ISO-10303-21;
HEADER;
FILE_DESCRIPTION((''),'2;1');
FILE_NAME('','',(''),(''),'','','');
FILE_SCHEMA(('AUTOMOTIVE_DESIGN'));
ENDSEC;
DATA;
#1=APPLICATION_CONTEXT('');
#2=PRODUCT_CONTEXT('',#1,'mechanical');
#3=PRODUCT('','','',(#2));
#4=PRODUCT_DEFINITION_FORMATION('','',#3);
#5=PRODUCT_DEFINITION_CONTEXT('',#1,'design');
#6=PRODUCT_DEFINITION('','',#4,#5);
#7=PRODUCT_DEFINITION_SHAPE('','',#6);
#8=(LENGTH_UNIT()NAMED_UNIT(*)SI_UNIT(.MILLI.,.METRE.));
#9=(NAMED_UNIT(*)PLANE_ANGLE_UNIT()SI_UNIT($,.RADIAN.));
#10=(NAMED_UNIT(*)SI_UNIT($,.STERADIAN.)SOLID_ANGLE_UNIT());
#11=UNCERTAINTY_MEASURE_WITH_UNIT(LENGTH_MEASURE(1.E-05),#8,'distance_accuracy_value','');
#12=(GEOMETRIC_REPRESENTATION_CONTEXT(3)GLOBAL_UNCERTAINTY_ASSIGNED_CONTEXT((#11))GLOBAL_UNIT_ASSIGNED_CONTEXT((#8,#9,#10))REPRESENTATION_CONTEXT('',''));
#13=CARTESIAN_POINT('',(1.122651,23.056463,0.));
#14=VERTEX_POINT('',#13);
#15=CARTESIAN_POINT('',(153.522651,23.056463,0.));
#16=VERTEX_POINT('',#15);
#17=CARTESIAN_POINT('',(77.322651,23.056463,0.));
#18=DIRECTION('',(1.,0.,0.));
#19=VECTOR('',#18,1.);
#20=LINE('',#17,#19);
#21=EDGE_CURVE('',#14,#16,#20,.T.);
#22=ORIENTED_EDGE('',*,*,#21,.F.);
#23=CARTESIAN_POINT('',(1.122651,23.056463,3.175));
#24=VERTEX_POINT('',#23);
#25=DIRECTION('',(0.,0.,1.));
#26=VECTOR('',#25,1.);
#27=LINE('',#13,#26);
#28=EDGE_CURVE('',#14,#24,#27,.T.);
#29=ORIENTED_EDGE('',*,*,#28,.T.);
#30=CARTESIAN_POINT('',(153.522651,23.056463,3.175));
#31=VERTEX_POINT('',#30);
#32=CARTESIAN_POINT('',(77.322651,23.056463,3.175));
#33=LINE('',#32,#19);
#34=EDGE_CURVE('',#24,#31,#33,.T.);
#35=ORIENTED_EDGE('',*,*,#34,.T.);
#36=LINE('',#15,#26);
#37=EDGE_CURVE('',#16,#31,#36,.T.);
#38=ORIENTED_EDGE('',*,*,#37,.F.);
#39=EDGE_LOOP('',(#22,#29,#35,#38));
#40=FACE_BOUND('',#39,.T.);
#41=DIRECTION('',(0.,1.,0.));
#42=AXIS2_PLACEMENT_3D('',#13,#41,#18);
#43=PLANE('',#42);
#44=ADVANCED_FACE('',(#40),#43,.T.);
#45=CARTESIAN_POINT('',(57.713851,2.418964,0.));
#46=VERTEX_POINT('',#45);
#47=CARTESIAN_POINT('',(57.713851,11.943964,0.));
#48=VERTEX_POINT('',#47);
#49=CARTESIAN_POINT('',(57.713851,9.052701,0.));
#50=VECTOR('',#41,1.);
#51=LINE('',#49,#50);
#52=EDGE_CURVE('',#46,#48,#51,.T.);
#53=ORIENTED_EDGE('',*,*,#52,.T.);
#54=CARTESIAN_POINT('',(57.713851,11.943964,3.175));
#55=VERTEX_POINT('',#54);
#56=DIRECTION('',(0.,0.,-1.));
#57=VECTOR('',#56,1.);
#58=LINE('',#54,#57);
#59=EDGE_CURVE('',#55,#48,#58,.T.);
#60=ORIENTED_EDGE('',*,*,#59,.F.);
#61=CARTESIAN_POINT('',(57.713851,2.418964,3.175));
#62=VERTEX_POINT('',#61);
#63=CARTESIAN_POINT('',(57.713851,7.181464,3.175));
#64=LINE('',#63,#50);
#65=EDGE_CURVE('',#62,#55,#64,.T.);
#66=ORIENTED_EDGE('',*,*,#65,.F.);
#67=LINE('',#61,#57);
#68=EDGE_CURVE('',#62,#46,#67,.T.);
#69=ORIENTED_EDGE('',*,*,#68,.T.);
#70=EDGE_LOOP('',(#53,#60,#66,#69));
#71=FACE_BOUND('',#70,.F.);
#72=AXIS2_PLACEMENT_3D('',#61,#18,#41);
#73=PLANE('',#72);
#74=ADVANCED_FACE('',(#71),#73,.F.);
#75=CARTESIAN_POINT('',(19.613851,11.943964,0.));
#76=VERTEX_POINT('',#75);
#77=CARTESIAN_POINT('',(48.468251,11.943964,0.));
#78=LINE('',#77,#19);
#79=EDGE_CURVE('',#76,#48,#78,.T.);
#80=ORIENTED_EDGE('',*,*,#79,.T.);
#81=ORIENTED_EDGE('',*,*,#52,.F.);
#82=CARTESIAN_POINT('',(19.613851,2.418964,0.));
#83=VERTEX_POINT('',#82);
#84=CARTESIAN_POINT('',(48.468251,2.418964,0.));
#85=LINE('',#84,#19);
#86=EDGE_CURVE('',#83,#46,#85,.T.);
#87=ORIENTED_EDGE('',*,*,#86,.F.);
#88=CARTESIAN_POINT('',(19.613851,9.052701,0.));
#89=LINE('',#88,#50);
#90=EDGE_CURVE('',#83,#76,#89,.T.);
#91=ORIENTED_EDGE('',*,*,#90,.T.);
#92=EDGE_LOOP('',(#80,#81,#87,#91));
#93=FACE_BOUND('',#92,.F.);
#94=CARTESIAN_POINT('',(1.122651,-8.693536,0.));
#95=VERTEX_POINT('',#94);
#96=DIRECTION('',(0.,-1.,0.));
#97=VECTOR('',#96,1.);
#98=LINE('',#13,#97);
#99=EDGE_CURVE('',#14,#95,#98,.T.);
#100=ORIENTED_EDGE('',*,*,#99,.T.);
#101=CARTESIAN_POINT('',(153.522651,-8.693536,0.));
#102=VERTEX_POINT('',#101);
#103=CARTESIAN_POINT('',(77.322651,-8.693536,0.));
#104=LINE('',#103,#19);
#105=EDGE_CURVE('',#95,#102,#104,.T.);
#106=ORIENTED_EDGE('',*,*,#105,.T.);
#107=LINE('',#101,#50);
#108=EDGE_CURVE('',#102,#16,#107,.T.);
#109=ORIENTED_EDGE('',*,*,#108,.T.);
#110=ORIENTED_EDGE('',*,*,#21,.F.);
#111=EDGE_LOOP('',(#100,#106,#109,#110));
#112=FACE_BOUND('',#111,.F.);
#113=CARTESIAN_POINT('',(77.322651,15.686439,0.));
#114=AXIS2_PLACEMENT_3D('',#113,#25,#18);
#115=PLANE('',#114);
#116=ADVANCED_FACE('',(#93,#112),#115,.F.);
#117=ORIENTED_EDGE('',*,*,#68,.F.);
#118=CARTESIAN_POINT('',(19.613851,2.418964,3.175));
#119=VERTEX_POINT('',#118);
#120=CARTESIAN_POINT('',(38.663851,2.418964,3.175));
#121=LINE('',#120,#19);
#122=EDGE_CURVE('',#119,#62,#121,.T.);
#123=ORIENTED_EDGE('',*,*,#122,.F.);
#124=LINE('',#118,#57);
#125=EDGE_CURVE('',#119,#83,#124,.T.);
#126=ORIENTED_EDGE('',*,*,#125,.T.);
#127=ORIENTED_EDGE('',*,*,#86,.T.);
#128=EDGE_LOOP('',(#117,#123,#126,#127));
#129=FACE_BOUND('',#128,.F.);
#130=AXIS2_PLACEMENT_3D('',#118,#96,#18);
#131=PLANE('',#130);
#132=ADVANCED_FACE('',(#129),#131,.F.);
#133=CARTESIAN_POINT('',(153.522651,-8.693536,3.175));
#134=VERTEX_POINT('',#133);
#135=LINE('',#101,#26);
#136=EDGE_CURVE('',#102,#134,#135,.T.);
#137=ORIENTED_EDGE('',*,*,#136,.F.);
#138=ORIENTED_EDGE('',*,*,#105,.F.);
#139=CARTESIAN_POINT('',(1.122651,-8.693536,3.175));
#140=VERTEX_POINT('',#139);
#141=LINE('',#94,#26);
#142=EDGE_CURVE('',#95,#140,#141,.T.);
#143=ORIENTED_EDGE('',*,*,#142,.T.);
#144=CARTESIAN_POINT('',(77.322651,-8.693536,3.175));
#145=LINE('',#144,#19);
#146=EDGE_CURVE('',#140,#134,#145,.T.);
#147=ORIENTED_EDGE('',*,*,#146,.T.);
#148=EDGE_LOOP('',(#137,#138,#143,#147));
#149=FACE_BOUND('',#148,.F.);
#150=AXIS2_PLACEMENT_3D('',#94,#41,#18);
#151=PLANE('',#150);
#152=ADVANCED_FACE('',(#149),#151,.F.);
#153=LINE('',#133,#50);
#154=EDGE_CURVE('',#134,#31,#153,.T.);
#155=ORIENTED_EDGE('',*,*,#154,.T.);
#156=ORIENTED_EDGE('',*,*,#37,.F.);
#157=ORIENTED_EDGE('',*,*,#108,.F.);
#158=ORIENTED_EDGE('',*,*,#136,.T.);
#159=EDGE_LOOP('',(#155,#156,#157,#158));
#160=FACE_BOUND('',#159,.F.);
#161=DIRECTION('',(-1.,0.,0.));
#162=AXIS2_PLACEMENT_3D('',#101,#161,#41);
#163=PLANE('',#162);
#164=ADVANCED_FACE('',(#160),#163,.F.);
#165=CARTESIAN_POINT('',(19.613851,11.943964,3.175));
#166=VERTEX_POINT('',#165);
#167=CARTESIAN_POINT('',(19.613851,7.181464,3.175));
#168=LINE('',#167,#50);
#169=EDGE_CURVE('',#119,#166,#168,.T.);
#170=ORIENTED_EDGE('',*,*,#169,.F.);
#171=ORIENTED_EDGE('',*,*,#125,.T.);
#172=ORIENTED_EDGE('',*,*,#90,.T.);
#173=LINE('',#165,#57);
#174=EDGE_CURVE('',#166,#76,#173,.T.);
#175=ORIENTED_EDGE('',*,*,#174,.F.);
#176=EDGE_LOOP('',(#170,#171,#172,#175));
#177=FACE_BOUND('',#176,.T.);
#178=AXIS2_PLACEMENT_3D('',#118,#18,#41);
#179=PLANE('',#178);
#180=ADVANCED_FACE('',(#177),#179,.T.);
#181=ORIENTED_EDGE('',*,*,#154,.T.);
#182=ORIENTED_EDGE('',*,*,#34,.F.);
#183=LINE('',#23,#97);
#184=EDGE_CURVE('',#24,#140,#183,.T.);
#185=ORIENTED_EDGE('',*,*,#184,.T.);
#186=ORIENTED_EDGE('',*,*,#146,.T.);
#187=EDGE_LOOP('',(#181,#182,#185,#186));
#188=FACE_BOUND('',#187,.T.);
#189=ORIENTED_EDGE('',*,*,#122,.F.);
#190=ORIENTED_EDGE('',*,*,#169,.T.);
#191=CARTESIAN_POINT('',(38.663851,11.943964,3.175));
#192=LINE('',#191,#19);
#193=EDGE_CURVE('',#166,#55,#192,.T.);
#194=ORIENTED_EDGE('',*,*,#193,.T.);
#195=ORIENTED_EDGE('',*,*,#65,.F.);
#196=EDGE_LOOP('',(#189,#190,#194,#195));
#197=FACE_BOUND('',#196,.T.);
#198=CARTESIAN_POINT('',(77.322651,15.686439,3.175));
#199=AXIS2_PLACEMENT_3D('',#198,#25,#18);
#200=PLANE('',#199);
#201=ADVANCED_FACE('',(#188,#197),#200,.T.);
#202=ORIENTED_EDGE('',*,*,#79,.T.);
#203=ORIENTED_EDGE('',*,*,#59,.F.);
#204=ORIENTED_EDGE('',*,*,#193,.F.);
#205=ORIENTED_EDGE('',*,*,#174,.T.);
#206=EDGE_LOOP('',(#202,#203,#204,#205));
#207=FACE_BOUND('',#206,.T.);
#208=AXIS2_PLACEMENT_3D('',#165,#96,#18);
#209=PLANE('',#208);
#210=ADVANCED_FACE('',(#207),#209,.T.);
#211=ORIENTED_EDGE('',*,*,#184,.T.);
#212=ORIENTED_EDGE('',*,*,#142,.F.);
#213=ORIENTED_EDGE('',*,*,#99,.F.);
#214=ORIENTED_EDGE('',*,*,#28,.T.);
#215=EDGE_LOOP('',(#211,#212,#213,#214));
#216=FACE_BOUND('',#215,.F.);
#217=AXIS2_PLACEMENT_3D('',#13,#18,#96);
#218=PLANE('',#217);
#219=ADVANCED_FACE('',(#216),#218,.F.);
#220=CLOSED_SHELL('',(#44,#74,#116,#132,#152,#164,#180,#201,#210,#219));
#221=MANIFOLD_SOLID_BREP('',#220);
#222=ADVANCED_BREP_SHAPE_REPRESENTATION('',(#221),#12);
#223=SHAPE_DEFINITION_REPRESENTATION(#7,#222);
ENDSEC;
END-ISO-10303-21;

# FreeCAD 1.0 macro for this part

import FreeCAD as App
import Part
import Sketcher

V = App.Vector
Q = App.Units.Quantity

doc = App.newDocument("Part")
params = doc.addObject("Spreadsheet::Sheet", "Params")
for row, (alias, value) in enumerate([
    ("sketch1_width", "6 in"),
    ("sketch1_height", "1.25 in"),
    ("pad1_length", "0.125 in"),
    ("sketch2_width", "6 in"),
    ("pocket1_length", "2.17 in"),
    ("sketch3_width", "1.5 in"),
    ("sketch3_height", "0.375 in"),
    ("pocket2_length", "1 in"),
], start=1):
    params.set(f"A{row}", alias)
    params.set(f"B{row}", "=" + value)
    params.setAlias(f"B{row}", alias)

body = doc.addObject("PartDesign::Body", "Body")

sketch1 = body.newObject("Sketcher::SketchObject", "Sketch")
sketch1.AttachmentSupport = (doc.getObject("XY_Plane"), [""])
sketch1.MapMode = "FlatFace"
sketch1.addGeometry([
    Part.LineSegment(V(154, 23, 0), V(1, 23, 0)),
    Part.LineSegment(V(1, 23, 0), V(1, -9, 0)),
    Part.LineSegment(V(1, -9, 0), V(154, -9, 0)),
    Part.LineSegment(V(154, -9, 0), V(154, 23, 0)),
], False)
sketch1.addConstraint([
    Sketcher.Constraint("Coincident", 0, 2, 1, 1),
    Sketcher.Constraint("Coincident", 1, 2, 2, 1),
    Sketcher.Constraint("Coincident", 2, 2, 3, 1),
    Sketcher.Constraint("Coincident", 3, 2, 0, 1),
    Sketcher.Constraint("Horizontal", 0),
    Sketcher.Constraint("Vertical", 1),
    Sketcher.Constraint("Horizontal", 2),
    Sketcher.Constraint("Vertical", 3),
    Sketcher.Constraint("DistanceX", 0, 2, 0, 1, Q("6 in")),
    Sketcher.Constraint("DistanceY", 1, 2, 1, 1, Q("1.25 in")),
    Sketcher.Constraint("DistanceX", -1, 1, 0, 2, Q("1.122651 mm")),
    Sketcher.Constraint("DistanceY", -1, 1, 0, 2, Q("23.056463 mm")),
])
sketch1.setExpression("Constraints[8]", "Params.sketch1_width")
sketch1.setExpression("Constraints[9]", "Params.sketch1_height")
pad1 = body.newObject("PartDesign::Pad", "Pad")
pad1.Profile = sketch1
pad1.setExpression("Length", "Params.pad1_length")

sketch2 = body.newObject("Sketcher::SketchObject", "Sketch001")
sketch2.AttachmentSupport = (doc.getObject("XY_Plane"), [""])
sketch2.MapMode = "FlatFace"
sketch2.addGeometry([
    Part.LineSegment(V(1, 8, 0), V(1, 0, 0)),
    Part.LineSegment(V(1, 0, 0), V(154, 0, 0)),
    Part.LineSegment(V(154, 0, 0), V(154, 8, 0)),
    Part.LineSegment(V(154, 8, 0), V(1, 8, 0)),
], False)
sketch2.addConstraint([
    Sketcher.Constraint("Coincident", 0, 2, 1, 1),
    Sketcher.Constraint("Coincident", 1, 2, 2, 1),
    Sketcher.Constraint("Coincident", 2, 2, 3, 1),
    Sketcher.Constraint("Coincident", 3, 2, 0, 1),
    Sketcher.Constraint("Vertical", 0),
    Sketcher.Constraint("Horizontal", 1),
    Sketcher.Constraint("Vertical", 2),
    Sketcher.Constraint("Horizontal", 3),
    Sketcher.Constraint("PointOnObject", 0, 2, -1),
    Sketcher.Constraint("DistanceX", 1, 1, 1, 2, Q("6 in")),
    Sketcher.Constraint("DistanceY", 0, 2, 0, 1, Q("8.316415 mm")),
    Sketcher.Constraint("DistanceX", -1, 1, 0, 2, Q("1.122651 mm")),
])
sketch2.setExpression("Constraints[9]", "Params.sketch2_width")
pocket1 = body.newObject("PartDesign::Pocket", "Pocket")
pocket1.Profile = sketch2
pocket1.setExpression("Length", "Params.pocket1_length")

sketch3 = body.newObject("Sketcher::SketchObject", "Sketch002")
sketch3.AttachmentSupport = (doc.getObject("XY_Plane"), [""])
sketch3.MapMode = "FlatFace"
sketch3.AttachmentOffset = App.Placement(V(0, 0, 0.125 * 25.4), App.Rotation())
sketch3.addGeometry([
    Part.LineSegment(V(20, 12, 0), V(20, 2, 0)),
    Part.LineSegment(V(20, 2, 0), V(58, 2, 0)),
    Part.LineSegment(V(58, 2, 0), V(58, 12, 0)),
    Part.LineSegment(V(58, 12, 0), V(20, 12, 0)),
], False)
sketch3.addConstraint([
    Sketcher.Constraint("Coincident", 0, 2, 1, 1),
    Sketcher.Constraint("Coincident", 1, 2, 2, 1),
    Sketcher.Constraint("Coincident", 2, 2, 3, 1),
    Sketcher.Constraint("Coincident", 3, 2, 0, 1),
    Sketcher.Constraint("Vertical", 0),
    Sketcher.Constraint("Horizontal", 1),
    Sketcher.Constraint("Vertical", 2),
    Sketcher.Constraint("Horizontal", 3),
    Sketcher.Constraint("DistanceX", 1, 1, 1, 2, Q("1.5 in")),
    Sketcher.Constraint("DistanceY", 0, 2, 0, 1, Q("0.375 in")),
    Sketcher.Constraint("DistanceX", -1, 1, 0, 2, Q("19.613851 mm")),
    Sketcher.Constraint("DistanceY", -1, 1, 0, 2, Q("2.418964 mm")),
])
sketch3.setExpression("Constraints[8]", "Params.sketch3_width")
sketch3.setExpression("Constraints[9]", "Params.sketch3_height")
pocket2 = body.newObject("PartDesign::Pocket", "Pocket001")
pocket2.Profile = sketch3
pocket2.setExpression("Length", "Params.pocket2_length")

doc.recompute()
